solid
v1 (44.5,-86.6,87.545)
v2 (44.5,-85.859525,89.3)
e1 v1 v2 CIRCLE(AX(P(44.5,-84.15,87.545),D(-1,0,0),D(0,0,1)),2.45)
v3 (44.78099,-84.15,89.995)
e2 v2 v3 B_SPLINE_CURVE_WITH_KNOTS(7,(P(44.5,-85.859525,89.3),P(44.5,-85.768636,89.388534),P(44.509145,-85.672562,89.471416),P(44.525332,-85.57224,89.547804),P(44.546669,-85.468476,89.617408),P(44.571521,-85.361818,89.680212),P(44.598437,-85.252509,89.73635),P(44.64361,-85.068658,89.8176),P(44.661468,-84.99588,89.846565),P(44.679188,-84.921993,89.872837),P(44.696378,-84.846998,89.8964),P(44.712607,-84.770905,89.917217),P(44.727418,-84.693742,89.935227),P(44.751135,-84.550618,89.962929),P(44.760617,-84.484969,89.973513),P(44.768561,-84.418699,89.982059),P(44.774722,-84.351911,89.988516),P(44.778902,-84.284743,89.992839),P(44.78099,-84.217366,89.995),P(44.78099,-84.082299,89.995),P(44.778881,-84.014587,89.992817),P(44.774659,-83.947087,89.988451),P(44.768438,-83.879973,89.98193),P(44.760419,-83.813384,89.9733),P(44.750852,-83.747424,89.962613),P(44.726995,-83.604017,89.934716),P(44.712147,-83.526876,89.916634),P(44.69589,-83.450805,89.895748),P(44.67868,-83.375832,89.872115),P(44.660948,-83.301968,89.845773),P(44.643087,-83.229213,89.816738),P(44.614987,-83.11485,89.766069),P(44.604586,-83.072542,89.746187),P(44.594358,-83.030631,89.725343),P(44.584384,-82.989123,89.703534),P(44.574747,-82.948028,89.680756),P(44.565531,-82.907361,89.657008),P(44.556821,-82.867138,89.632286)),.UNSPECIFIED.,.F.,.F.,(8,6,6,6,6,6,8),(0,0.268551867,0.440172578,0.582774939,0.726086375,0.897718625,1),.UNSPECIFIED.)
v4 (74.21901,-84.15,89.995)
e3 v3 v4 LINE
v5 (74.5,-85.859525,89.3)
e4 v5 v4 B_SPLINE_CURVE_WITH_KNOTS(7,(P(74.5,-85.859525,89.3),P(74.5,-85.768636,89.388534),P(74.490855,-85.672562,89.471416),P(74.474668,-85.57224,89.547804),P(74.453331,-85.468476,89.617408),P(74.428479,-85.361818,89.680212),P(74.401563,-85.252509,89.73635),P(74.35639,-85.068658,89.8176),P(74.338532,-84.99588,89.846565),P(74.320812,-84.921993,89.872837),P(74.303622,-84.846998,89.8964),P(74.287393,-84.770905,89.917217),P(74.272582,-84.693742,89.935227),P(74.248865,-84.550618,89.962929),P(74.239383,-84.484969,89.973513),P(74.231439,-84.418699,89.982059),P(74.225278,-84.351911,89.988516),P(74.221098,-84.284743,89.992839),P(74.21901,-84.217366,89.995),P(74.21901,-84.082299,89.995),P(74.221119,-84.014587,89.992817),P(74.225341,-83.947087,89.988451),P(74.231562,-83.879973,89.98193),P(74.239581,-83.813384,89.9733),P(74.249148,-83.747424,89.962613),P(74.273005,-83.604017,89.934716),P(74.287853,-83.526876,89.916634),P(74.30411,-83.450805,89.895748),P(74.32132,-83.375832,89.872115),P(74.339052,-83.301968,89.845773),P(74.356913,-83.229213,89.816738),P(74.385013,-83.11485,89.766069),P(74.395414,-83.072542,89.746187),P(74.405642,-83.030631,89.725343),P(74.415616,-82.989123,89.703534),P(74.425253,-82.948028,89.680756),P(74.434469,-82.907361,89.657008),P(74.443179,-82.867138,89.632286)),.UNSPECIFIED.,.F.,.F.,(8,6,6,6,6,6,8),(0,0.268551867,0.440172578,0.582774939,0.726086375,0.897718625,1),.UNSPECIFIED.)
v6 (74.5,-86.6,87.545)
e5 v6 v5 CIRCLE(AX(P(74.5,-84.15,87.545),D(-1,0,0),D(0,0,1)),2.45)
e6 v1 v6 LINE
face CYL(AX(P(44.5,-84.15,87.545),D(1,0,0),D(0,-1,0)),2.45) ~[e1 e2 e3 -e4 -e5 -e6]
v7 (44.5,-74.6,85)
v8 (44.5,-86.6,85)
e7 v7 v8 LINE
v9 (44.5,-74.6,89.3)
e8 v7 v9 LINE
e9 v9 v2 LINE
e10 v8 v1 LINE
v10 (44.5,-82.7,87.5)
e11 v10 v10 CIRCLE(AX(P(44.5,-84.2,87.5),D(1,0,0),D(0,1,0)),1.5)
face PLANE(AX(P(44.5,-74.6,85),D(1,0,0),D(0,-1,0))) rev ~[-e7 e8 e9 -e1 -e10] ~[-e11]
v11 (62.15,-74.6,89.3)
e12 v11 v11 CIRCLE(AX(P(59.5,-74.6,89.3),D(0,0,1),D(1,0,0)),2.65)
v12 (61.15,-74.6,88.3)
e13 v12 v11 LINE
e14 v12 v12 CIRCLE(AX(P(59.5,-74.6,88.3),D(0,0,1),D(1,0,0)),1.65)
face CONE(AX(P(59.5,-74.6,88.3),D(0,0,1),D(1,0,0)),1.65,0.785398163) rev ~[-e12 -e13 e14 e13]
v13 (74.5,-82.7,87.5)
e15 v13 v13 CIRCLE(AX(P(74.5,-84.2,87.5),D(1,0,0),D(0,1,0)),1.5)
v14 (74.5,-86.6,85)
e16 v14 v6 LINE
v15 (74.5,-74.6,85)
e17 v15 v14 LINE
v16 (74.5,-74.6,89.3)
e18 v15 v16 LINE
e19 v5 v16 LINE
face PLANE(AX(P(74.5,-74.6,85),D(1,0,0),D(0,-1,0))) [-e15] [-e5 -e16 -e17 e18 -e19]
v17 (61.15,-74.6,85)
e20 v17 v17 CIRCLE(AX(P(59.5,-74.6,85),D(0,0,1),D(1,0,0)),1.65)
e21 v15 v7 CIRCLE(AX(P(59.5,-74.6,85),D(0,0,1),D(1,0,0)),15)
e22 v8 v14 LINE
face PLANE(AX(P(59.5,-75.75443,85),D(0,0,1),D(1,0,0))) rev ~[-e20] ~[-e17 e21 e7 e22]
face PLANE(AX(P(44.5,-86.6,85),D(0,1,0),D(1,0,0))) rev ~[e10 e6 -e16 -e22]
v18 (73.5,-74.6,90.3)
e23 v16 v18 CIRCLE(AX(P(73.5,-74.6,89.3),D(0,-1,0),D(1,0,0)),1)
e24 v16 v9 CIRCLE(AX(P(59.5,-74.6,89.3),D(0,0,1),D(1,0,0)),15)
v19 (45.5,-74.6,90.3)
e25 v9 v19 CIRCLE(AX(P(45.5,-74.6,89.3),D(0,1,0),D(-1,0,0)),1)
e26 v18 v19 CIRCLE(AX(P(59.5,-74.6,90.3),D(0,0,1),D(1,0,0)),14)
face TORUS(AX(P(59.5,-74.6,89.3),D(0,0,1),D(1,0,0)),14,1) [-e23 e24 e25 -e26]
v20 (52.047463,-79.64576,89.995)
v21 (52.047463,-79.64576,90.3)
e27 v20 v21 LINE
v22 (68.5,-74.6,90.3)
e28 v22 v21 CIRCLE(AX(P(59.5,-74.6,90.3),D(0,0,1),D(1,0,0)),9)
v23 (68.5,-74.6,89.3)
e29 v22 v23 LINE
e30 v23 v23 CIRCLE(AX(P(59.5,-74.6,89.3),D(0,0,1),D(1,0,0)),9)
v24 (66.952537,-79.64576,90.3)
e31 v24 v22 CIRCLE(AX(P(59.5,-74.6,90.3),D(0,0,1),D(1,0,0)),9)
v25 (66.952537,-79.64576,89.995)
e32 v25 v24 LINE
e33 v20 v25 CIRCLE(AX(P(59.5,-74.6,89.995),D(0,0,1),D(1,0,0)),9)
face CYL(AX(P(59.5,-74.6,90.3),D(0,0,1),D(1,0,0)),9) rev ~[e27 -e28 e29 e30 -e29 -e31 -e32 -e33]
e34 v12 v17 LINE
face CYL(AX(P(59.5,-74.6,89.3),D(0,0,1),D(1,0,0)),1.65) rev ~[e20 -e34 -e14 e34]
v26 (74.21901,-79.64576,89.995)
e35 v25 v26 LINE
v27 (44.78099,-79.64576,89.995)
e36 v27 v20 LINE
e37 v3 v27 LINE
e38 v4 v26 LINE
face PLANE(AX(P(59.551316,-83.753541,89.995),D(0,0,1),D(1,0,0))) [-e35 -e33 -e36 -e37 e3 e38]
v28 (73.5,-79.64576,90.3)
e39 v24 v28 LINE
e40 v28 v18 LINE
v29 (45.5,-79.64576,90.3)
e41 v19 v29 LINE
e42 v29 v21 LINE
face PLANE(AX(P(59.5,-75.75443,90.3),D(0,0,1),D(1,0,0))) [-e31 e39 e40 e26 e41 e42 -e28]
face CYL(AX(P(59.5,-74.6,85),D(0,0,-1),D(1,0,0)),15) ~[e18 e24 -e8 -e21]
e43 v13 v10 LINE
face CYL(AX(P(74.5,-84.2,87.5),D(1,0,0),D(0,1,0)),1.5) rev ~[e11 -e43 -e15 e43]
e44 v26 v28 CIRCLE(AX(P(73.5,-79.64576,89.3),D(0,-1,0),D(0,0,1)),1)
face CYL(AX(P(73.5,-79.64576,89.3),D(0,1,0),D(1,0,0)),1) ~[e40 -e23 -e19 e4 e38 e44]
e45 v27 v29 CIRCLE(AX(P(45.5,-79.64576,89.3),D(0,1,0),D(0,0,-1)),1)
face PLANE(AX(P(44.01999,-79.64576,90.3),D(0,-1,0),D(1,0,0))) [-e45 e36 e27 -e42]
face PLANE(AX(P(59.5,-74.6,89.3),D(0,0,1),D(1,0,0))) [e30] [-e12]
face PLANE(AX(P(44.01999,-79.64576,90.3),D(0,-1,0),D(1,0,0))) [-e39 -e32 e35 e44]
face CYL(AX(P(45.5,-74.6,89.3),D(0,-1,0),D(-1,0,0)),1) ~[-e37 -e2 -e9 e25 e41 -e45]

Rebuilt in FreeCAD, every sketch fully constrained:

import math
import FreeCAD as App
import Part
import Sketcher

V = App.Vector


def edges_at(feature, points):
    """Names of the edges that pass closest to the given points."""
    edges = feature.Shape.Edges
    near = lambda p: min(range(len(edges)), key=lambda i: edges[i].distToShape(Part.Vertex(*p))[0])
    return sorted({f"Edge{near(p) + 1}" for p in points})


def add_polygon(sketch, points):
    """Adds a closed chain of lines whose ends are joined by coincident constraints."""
    first, n = sketch.GeometryCount, len(points)
    for a, b in zip(points, points[1:] + points[:1]):
        sketch.addGeometry(Part.LineSegment(App.Vector(*a, 0), App.Vector(*b, 0)), False)
    for i in range(n):
        sketch.addConstraint(Sketcher.Constraint("Coincident", first + i, 2, first + (i + 1) % n, 1))

doc = App.newDocument("Part")
params = doc.addObject("Spreadsheet::Sheet", "Params")
for row, (alias, value) in enumerate([
    ("sketch1_radius", "15 mm"),
    ("sketch1_height", "12 mm"),
    ("pad1_length", "5.3 mm"),
    ("pocket1_length", "0.305 mm"),
    ("fillet_radius", "2.45 mm"),
    ("fillet2_radius", "1 mm"),
    ("sketch3_diameter", "18 mm"),
    ("pocket2_length", "1 mm"),
    ("sketch4_diameter", "3.3 mm"),
    ("pocket3_length", "5 mm"),
    ("sketch5_diameter", "3 mm"),
    ("pocket4_length", "31 mm"),
    ("chamfer_size", "1 mm"),
], start=1):
    params.set(f"A{row}", alias)
    params.set(f"B{row}", "=" + value)
    params.setAlias(f"B{row}", alias)

body = doc.addObject("PartDesign::Body", "Body")

sketch1 = doc.addObject("Sketcher::SketchObject", "Sketch")
body.addObject(sketch1)
sketch1.AttachmentSupport = (doc.XY_Plane, [""])
sketch1.MapMode = "FlatFace"
sketch1.addGeometry([
    Part.ArcOfCircle(Part.Circle(V(0, 0, 0), V(0, 0, 1), 15), math.radians(0), math.radians(180)),
    Part.LineSegment(V(-15, 0, 0), V(-15, -12, 0)),
    Part.LineSegment(V(-15, -12, 0), V(15, -12, 0)),
    Part.LineSegment(V(15, -12, 0), V(15, 0, 0)),
], False)
sketch1.addConstraint([
    Sketcher.Constraint("Tangent", 0, 2, 1, 1),
    Sketcher.Constraint("Coincident", 1, 2, 2, 1),
    Sketcher.Constraint("Coincident", 2, 2, 3, 1),
    Sketcher.Constraint("Tangent", 3, 2, 0, 1),
    Sketcher.Constraint("Vertical", 1),
    Sketcher.Constraint("Horizontal", 2),
    Sketcher.Constraint("Vertical", 3),
    Sketcher.Constraint("Coincident", 0, 3, -1, 1),
    Sketcher.Constraint("Radius", 0, 15.0),
    Sketcher.Constraint("DistanceY", 1, 2, 1, 1, 12.0),
])
sketch1.setExpression("Constraints[8]", "Params.sketch1_radius")
sketch1.setExpression("Constraints[9]", "Params.sketch1_height")
pad1 = doc.addObject("PartDesign::Pad", "Pad")
body.addObject(pad1)
pad1.Profile = sketch1
pad1.setExpression("Length", "Params.pad1_length")

sketch2 = doc.addObject("Sketcher::SketchObject", "Sketch001")
body.addObject(sketch2)
sketch2.AttachmentSupport = (doc.XY_Plane, [""])
sketch2.MapMode = "FlatFace"
sketch2.AttachmentOffset = App.Placement(V(0, 0, 5.3), App.Rotation())
add_polygon(sketch2, [(-15.480011, -5.045761), (-15.480011, -13.261321), (15.582643, -13.261321), (15.582643, -5.045761)])
sketch2.addConstraint([
    Sketcher.Constraint("Vertical", 0),
    Sketcher.Constraint("Horizontal", 1),
    Sketcher.Constraint("Vertical", 2),
    Sketcher.Constraint("Horizontal", 3),
    Sketcher.Constraint("DistanceY", 0, 2, 0, 1, 8.215561),
    Sketcher.Constraint("DistanceX", 1, 1, 1, 2, 31.062653),
    Sketcher.Constraint("DistanceX", 0, 2, -1, 1, 15.480011),
    Sketcher.Constraint("DistanceY", 0, 2, -1, 1, 13.261321),
])
pocket1 = doc.addObject("PartDesign::Pocket", "Pocket")
body.addObject(pocket1)
pocket1.Profile = sketch2
pocket1.setExpression("Length", "Params.pocket1_length")
doc.recompute()

fillet = doc.addObject("PartDesign::Fillet", "Fillet")
body.addObject(fillet)
fillet.Base = (pocket1, edges_at(pocket1, [(0, -12, 4.995)]))
fillet.setExpression("Radius", "Params.fillet_radius")
doc.recompute()

fillet2 = doc.addObject("PartDesign::Fillet", "Fillet001")
body.addObject(fillet2)
fillet2.Base = (fillet, edges_at(fillet, [(0, 15, 5.3)]))
fillet2.setExpression("Radius", "Params.fillet2_radius")

sketch3 = doc.addObject("Sketcher::SketchObject", "Sketch002")
body.addObject(sketch3)
sketch3.AttachmentSupport = (doc.XY_Plane, [""])
sketch3.MapMode = "FlatFace"
sketch3.AttachmentOffset = App.Placement(V(0, 0, 5.3), App.Rotation())
sketch3.addGeometry(Part.Circle(V(0, 0, 0), V(0, 0, 1), 9), False)
sketch3.addConstraint([
    Sketcher.Constraint("Coincident", 0, 3, -1, 1),
    Sketcher.Constraint("Diameter", 0, 18.0),
])
sketch3.setExpression("Constraints[1]", "Params.sketch3_diameter")
pocket2 = doc.addObject("PartDesign::Pocket", "Pocket001")
body.addObject(pocket2)
pocket2.Profile = sketch3
pocket2.setExpression("Length", "Params.pocket2_length")

sketch4 = doc.addObject("Sketcher::SketchObject", "Sketch003")
body.addObject(sketch4)
sketch4.AttachmentSupport = (doc.XY_Plane, [""])
sketch4.MapMode = "FlatFace"
sketch4.AttachmentOffset = App.Placement(V(0, 0, 4.3), App.Rotation())
sketch4.addGeometry(Part.Circle(V(0, 0, 0), V(0, 0, 1), 1.65), False)
sketch4.addConstraint([
    Sketcher.Constraint("Coincident", 0, 3, -1, 1),
    Sketcher.Constraint("Diameter", 0, 3.3),
])
sketch4.setExpression("Constraints[1]", "Params.sketch4_diameter")
pocket3 = doc.addObject("PartDesign::Pocket", "Pocket002")
body.addObject(pocket3)
pocket3.Profile = sketch4
pocket3.setExpression("Length", "Params.pocket3_length")

sketch5 = doc.addObject("Sketcher::SketchObject", "Sketch004")
body.addObject(sketch5)
sketch5.AttachmentSupport = (doc.YZ_Plane, [""])
sketch5.MapMode = "FlatFace"
sketch5.AttachmentOffset = App.Placement(V(0, 0, 15), App.Rotation())
sketch5.addGeometry(Part.Circle(V(-9.6, 2.5, 0), V(0, 0, 1), 1.5), False)
sketch5.addConstraint([
    Sketcher.Constraint("Diameter", 0, 3.0),
    Sketcher.Constraint("DistanceX", 0, 3, -1, 1, 9.6),
    Sketcher.Constraint("DistanceY", -1, 1, 0, 3, 2.5),
])
sketch5.setExpression("Constraints[0]", "Params.sketch5_diameter")
pocket4 = doc.addObject("PartDesign::Pocket", "Pocket003")
body.addObject(pocket4)
pocket4.Profile = sketch5
pocket4.setExpression("Length", "Params.pocket4_length")
doc.recompute()

chamfer = doc.addObject("PartDesign::Chamfer", "Chamfer")
body.addObject(chamfer)
chamfer.Base = (pocket4, edges_at(pocket4, [(-1.65, 0, 4.3)]))
chamfer.setExpression("Size", "Params.chamfer_size")
body2 = doc.addObject("PartDesign::Body", "Body001")
doc.recompute()

body.Placement = App.Placement(V(59.5, -74.6, 85), App.Rotation(V(0, 0, 1), 0))
boolean = doc.addObject("PartDesign::Boolean", "Boolean")
body2.addObject(boolean)
boolean.Type = "Fuse"
boolean.addObjects([body])

doc.recompute()
